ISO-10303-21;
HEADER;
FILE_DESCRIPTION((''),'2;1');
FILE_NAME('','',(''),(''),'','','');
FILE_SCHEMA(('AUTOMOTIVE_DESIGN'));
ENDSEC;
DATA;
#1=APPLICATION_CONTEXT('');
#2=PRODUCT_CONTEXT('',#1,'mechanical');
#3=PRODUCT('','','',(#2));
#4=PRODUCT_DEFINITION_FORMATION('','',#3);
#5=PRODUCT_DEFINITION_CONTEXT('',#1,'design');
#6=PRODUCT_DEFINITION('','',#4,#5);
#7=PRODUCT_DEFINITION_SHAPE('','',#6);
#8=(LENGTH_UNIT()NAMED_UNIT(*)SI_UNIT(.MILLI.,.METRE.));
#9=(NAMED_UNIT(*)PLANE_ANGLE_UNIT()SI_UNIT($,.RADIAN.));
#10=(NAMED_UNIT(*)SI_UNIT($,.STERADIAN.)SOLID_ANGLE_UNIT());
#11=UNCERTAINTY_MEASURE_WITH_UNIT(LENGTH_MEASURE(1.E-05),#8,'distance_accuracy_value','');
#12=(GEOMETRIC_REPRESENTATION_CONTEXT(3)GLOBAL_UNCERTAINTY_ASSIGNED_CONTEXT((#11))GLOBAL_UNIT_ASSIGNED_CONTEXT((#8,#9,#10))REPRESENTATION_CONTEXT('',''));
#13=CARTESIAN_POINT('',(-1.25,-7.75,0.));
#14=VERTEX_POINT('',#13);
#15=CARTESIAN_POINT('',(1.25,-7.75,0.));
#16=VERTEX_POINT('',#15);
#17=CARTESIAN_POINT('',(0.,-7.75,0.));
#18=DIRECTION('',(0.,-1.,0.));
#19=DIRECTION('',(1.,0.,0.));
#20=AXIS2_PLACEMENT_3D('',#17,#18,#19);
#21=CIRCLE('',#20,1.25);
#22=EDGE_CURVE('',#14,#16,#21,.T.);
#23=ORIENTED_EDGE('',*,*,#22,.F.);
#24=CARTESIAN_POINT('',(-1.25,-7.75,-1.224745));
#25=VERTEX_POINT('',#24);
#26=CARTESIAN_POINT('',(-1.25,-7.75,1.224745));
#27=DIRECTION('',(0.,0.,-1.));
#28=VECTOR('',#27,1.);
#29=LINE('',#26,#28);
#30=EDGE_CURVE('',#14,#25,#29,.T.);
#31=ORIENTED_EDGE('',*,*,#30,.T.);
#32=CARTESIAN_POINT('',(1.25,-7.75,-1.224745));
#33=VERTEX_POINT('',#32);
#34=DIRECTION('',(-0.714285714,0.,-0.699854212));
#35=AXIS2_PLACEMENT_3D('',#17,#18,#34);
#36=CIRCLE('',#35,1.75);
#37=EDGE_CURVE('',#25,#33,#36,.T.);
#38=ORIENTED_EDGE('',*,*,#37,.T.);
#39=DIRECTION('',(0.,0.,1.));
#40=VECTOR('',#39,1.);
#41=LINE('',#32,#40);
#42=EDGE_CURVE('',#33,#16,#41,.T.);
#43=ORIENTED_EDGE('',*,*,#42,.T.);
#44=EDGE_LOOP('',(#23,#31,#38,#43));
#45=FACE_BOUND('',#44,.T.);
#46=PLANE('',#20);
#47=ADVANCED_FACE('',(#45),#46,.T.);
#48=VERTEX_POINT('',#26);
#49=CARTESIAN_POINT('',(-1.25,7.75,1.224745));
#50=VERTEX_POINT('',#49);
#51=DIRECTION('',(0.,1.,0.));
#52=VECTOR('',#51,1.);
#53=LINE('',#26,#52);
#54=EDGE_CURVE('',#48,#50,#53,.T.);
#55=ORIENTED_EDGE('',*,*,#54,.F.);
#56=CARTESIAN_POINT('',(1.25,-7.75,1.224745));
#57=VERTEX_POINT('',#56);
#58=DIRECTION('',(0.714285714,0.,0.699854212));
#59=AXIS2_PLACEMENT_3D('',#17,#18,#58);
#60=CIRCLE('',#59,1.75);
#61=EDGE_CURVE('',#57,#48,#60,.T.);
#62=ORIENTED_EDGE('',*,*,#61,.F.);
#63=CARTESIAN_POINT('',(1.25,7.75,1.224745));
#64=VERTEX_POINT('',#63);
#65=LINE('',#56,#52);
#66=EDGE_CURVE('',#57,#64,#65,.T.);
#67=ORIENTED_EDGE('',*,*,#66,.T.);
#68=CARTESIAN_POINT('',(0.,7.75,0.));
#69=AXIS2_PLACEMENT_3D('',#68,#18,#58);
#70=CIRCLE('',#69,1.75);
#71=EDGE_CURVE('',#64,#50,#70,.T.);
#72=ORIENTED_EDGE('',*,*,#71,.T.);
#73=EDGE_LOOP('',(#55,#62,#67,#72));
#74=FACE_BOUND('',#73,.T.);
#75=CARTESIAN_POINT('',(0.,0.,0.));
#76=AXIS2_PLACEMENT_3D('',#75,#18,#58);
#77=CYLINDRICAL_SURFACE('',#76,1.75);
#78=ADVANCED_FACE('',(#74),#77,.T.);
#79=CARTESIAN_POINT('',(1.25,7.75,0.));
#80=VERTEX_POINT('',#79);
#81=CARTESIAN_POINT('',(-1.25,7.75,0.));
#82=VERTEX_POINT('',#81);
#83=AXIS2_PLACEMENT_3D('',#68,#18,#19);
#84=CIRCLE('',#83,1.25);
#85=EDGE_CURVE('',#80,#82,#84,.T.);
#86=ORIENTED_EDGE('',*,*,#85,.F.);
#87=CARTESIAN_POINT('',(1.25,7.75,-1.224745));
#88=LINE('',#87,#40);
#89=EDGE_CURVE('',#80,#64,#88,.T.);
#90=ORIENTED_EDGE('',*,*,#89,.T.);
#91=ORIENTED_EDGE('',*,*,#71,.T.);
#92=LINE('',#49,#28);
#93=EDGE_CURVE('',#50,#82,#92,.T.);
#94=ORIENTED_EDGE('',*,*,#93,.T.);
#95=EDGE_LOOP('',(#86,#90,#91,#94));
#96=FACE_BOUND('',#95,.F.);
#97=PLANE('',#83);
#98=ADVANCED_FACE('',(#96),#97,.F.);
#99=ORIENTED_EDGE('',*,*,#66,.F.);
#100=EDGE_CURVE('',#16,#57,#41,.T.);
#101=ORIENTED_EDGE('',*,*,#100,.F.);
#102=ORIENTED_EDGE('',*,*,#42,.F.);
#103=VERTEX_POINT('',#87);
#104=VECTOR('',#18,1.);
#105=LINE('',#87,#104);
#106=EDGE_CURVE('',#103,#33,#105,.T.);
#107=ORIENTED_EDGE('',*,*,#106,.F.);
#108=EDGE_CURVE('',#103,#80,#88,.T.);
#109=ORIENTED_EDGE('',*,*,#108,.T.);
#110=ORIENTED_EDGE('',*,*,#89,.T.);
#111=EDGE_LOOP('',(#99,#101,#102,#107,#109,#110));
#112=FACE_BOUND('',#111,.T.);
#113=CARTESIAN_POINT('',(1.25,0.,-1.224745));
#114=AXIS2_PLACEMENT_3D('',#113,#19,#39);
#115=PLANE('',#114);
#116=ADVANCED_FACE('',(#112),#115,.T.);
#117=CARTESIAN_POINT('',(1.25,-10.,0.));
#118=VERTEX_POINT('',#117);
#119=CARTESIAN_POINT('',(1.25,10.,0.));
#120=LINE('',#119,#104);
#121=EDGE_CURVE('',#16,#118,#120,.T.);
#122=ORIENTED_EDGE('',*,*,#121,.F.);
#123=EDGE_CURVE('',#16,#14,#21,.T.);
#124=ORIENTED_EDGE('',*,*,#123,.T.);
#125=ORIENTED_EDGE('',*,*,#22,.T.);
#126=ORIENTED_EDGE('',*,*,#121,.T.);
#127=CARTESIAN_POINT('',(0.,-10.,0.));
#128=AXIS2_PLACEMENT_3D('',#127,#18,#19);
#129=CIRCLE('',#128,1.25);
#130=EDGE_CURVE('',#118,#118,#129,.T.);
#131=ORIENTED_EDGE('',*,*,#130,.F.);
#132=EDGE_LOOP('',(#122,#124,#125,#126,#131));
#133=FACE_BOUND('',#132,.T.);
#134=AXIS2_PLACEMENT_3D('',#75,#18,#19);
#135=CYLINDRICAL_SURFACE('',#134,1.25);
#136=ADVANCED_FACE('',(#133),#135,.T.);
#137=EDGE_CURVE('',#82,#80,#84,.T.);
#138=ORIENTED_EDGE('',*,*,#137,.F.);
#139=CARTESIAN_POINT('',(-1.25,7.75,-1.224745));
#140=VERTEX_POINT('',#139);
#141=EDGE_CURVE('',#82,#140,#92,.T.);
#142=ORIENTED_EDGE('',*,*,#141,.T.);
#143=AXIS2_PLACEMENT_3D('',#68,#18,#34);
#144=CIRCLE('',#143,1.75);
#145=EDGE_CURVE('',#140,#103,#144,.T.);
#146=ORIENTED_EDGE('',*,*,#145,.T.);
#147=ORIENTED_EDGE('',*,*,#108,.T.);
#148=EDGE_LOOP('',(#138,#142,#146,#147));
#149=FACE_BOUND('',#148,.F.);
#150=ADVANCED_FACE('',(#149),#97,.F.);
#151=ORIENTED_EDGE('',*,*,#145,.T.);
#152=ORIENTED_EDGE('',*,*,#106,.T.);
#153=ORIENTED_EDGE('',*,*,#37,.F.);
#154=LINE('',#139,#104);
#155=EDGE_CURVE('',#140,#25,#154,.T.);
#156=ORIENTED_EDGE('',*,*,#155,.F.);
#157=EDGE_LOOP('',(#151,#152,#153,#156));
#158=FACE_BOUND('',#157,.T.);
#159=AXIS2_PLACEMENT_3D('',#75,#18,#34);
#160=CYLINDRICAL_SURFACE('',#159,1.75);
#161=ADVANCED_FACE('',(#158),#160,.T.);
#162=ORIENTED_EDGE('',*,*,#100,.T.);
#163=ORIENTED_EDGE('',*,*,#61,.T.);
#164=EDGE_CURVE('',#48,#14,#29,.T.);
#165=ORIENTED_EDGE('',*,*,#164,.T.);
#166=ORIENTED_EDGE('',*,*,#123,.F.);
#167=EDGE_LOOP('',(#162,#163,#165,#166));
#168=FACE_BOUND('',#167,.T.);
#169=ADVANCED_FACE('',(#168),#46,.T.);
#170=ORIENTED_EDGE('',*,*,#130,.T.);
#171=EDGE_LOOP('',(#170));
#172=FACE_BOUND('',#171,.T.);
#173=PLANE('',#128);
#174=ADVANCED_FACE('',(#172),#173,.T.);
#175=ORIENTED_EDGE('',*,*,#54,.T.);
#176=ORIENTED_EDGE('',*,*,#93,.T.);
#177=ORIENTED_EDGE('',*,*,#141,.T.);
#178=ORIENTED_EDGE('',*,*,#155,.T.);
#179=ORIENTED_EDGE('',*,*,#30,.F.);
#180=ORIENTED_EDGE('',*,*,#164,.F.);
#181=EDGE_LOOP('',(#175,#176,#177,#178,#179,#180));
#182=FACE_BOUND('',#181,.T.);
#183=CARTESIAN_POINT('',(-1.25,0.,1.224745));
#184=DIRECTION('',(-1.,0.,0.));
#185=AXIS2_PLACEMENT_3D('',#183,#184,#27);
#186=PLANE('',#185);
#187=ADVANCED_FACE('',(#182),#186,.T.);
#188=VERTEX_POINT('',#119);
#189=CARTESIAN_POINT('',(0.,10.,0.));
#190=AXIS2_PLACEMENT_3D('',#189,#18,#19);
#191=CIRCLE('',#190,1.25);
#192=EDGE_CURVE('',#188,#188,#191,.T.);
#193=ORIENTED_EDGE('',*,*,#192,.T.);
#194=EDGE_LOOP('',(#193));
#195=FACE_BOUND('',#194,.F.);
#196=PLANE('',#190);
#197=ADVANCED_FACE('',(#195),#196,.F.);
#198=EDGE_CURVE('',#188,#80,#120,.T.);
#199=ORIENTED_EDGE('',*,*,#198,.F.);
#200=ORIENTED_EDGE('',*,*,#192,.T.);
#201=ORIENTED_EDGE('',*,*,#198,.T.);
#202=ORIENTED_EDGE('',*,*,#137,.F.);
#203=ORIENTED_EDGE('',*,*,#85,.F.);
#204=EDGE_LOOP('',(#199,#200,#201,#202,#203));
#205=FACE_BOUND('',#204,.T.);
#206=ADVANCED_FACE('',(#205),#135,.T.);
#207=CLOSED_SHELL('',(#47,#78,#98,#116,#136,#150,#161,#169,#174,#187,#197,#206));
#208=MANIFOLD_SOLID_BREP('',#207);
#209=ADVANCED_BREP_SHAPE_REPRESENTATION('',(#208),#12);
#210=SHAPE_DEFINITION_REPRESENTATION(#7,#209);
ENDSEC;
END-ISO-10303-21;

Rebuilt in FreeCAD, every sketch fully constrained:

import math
import FreeCAD as App
import Part
import Sketcher
Q = App.Units.Quantity

doc = App.newDocument("Part")
body = doc.addObject("PartDesign::Body", "Body")

sketch1 = body.newObject("Sketcher::SketchObject", "Sketch")
sketch1.AttachmentSupport = (doc.getObject("XZ_Plane"), [""])
sketch1.MapMode = "FlatFace"
sketch1.addGeometry(Part.LineSegment(App.Vector(-1.25, 1.224745, 0), App.Vector(-1.25, -1.224745, 0)), False)
sketch1.addGeometry(Part.ArcOfCircle(Part.Circle(App.Vector(0, 0, 0), App.Vector(0, 0, 1), 1.75), math.radians(-135.584691), math.radians(-44.415309)), False)
sketch1.addGeometry(Part.LineSegment(App.Vector(1.25, -1.224745, 0), App.Vector(1.25, 1.224745, 0)), False)
sketch1.addGeometry(Part.ArcOfCircle(Part.Circle(App.Vector(0, 0, 0), App.Vector(0, 0, 1), 1.75), math.radians(44.415309), math.radians(135.584691)), False)
sketch1.addConstraint(Sketcher.Constraint("Coincident", 0, 2, 1, 1))
sketch1.addConstraint(Sketcher.Constraint("Coincident", 1, 2, 2, 1))
sketch1.addConstraint(Sketcher.Constraint("Coincident", 2, 2, 3, 1))
sketch1.addConstraint(Sketcher.Constraint("Coincident", 3, 2, 0, 1))
sketch1.addConstraint(Sketcher.Constraint("Vertical", 0))
sketch1.addConstraint(Sketcher.Constraint("Vertical", 2))
sketch1.addConstraint(Sketcher.Constraint("Coincident", 1, 3, -1, 1))
sketch1.addConstraint(Sketcher.Constraint("Coincident", 3, 3, -1, 1))
sketch1.addConstraint(Sketcher.Constraint("Equal", 1, 3))
sketch1.addConstraint(Sketcher.Constraint("Horizontal", 0, 2, 1, 2))
sketch1.addConstraint(Sketcher.Constraint("Radius", 1, Q("1.75 mm")))
sketch1.addConstraint(Sketcher.Constraint("DistanceX", 0, 2, 1, 2, Q("2.5 mm")))
pad1 = body.newObject("PartDesign::Pad", "Pad")
pad1.Profile = sketch1
pad1.Length = 15.5
pad1.Midplane = True

sketch2 = body.newObject("Sketcher::SketchObject", "Sketch001")
sketch2.AttachmentSupport = (doc.getObject("XZ_Plane"), [""])
sketch2.MapMode = "FlatFace"
sketch2.addGeometry(Part.Circle(App.Vector(0, 0, 0), App.Vector(0, 0, 1), 1.25), False)
sketch2.addConstraint(Sketcher.Constraint("Coincident", 0, 3, -1, 1))
sketch2.addConstraint(Sketcher.Constraint("Diameter", 0, Q("2.5 mm")))
pad2 = body.newObject("PartDesign::Pad", "Pad001")
pad2.Profile = sketch2
pad2.Length = 20
pad2.Midplane = True

doc.recompute()
